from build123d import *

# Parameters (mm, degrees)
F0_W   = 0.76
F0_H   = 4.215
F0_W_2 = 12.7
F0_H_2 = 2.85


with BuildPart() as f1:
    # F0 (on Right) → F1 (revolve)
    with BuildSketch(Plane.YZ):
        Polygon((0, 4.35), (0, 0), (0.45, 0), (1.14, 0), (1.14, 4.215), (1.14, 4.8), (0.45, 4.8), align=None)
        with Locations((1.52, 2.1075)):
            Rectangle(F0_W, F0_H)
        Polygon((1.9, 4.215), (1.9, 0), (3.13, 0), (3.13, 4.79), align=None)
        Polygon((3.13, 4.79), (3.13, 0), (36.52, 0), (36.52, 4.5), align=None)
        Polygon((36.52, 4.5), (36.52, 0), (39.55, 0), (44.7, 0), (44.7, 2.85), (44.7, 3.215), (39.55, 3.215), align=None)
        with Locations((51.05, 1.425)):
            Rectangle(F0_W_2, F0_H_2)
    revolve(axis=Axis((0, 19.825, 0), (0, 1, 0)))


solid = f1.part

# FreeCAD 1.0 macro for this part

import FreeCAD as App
import Part
import Sketcher
from FreeCAD import Vector
Q = App.Units.Quantity


def add_polygon(sketch, points):
    """Adds a closed chain of lines whose ends are joined by coincident constraints."""
    first, n = sketch.GeometryCount, len(points)
    for a, b in zip(points, points[1:] + points[:1]):
        sketch.addGeometry(Part.LineSegment(App.Vector(*a, 0), App.Vector(*b, 0)), False)
    for i in range(n):
        sketch.addConstraint(Sketcher.Constraint("Coincident", first + i, 2, first + (i + 1) % n, 1))

doc = App.newDocument("Part")
body = doc.addObject("PartDesign::Body", "Body")

# Sketch on YZ plane
sketch1 = doc.addObject("Sketcher::SketchObject", "Sketch")
body.addObject(sketch1)
sketch1.AttachmentSupport = (doc.YZ_Plane, [""])
sketch1.MapMode = "FlatFace"
add_polygon(sketch1, [(0, 4.35), (0, 0), (57.4, 0), (57.4, 2.85), (44.7, 2.85), (44.7, 3.21), (39.55, 3.21), (36.52, 4.5), (3.13, 4.79), (1.9, 4.21), (1.14, 4.21), (1.14, 4.8), (0.45, 4.8)])  # lines 0-12
sketch1.addConstraint([
    Sketcher.Constraint("Vertical", 0),
    Sketcher.Constraint("Horizontal", 1),
    Sketcher.Constraint("Vertical", 2),
    Sketcher.Constraint("Horizontal", 3),
    Sketcher.Constraint("Vertical", 4),
    Sketcher.Constraint("Horizontal", 5),
    Sketcher.Constraint("Horizontal", 9),
    Sketcher.Constraint("Vertical", 10),
    Sketcher.Constraint("Horizontal", 11),
    Sketcher.Constraint("Coincident", 0, 2, -1, 1),
    Sketcher.Constraint("Angle", 12, Q("-135 deg")),
    Sketcher.Constraint("DistanceX", 1, 1, 1, 2, Q("57.4 mm")),
    Sketcher.Constraint("DistanceX", 3, 2, 3, 1, Q("12.7 mm")),
    Sketcher.Constraint("DistanceY", 5, 2, 8, 2, Q("1 mm")),
    Sketcher.Constraint("DistanceX", 5, 2, 5, 1, Q("5.15 mm")),
    Sketcher.Constraint("DistanceX", 9, 2, 9, 1, Q("0.76 mm")),
    Sketcher.Constraint("DistanceX", 11, 2, 11, 1, Q("0.69 mm")),
    Sketcher.Constraint("DistanceY", 0, 2, 0, 1, Q("4.35 mm")),
    Sketcher.Constraint("DistanceY", 2, 1, 2, 2, Q("2.85 mm")),
    Sketcher.Constraint("DistanceY", -1, 1, 6, 2, Q("4.5 mm")),
    Sketcher.Constraint("DistanceX", -1, 1, 8, 2, Q("1.9 mm")),
    Sketcher.Constraint("DistanceY", 4, 1, 4, 2, Q("0.365 mm")),
    Sketcher.Constraint("DistanceX", -1, 1, 6, 2, Q("36.52 mm")),
    Sketcher.Constraint("DistanceX", -1, 1, 7, 2, Q("3.13 mm")),
    Sketcher.Constraint("DistanceY", -1, 1, 7, 2, Q("4.79 mm")),
])
revolution = doc.addObject("PartDesign::Revolution", "Revolution")
body.addObject(revolution)
revolution.Profile = sketch1
revolution.ReferenceAxis = (sketch1, ["H_Axis"])
revolution.Angle = 360

doc.recompute()
